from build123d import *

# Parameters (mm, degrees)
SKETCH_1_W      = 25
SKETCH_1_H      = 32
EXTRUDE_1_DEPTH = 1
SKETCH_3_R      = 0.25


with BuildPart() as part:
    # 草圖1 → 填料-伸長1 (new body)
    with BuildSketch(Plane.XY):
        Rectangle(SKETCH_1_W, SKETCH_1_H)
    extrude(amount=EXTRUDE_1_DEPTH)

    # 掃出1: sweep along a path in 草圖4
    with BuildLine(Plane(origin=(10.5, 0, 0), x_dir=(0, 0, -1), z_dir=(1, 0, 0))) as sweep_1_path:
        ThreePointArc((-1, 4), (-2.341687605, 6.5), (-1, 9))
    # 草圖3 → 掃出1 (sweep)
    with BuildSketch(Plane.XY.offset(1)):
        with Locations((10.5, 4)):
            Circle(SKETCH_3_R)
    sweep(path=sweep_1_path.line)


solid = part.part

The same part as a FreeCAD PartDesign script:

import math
import FreeCAD as App
import Part
import Sketcher

V = App.Vector


def add_polygon(sketch, points):
    """Adds a closed chain of lines whose ends are joined by coincident constraints."""
    first, n = sketch.GeometryCount, len(points)
    for a, b in zip(points, points[1:] + points[:1]):
        sketch.addGeometry(Part.LineSegment(App.Vector(*a, 0), App.Vector(*b, 0)), False)
    for i in range(n):
        sketch.addConstraint(Sketcher.Constraint("Coincident", first + i, 2, first + (i + 1) % n, 1))

doc = App.newDocument("Part")
params = doc.addObject("Spreadsheet::Sheet", "Params")
for row, (alias, value) in enumerate([
    ("sketch1_width", "25 mm"),
    ("sketch1_height", "32 mm"),
    ("pad1_length", "1 mm"),
    ("sketch2_diameter", "0.5 mm"),
    ("sketch3_radius", "3 mm"),
], start=1):
    params.set(f"A{row}", alias)
    params.set(f"B{row}", "=" + value)
    params.setAlias(f"B{row}", alias)

body = doc.addObject("PartDesign::Body", "Body")

# Sketch on XY plane
sketch1 = body.newObject("Sketcher::SketchObject", "Sketch")
sketch1.AttachmentSupport = (doc.getObject("XY_Plane"), [""])
sketch1.MapMode = "FlatFace"
add_polygon(sketch1, [(-12, 16), (-12, -16), (12, -16), (12, 16)])  # lines 0-3
sketch1.addConstraint([
    Sketcher.Constraint("Vertical", 0),
    Sketcher.Constraint("Horizontal", 1),
    Sketcher.Constraint("Vertical", 2),
    Sketcher.Constraint("Horizontal", 3),
    Sketcher.Constraint("Symmetric", 0, 2, 2, 2, -1, 1),
    Sketcher.Constraint("DistanceX", 1, 1, 1, 2, 25.0),
    Sketcher.Constraint("DistanceY", 0, 2, 0, 1, 32.0),
])
sketch1.setExpression("Constraints[9]", "Params.sketch1_width")
sketch1.setExpression("Constraints[10]", "Params.sketch1_height")
pad1 = body.newObject("PartDesign::Pad", "Pad")
pad1.Profile = sketch1
pad1.setExpression("Length", "Params.pad1_length")

# Sketch on XY plane
sketch2 = body.newObject("Sketcher::SketchObject", "Sketch001")
sketch2.AttachmentSupport = (doc.getObject("XY_Plane"), [""])
sketch2.MapMode = "FlatFace"
sketch2.AttachmentOffset = App.Placement(V(0, 0, 1), App.Rotation())
sketch2.addGeometry(Part.Circle(V(10.5, 4, 0), V(0, 0, 1), 0.25), False)
sketch2.addConstraint([
    Sketcher.Constraint("Diameter", 0, 0.5),
    Sketcher.Constraint("DistanceY", -1, 1, 0, 3, 4.0),
    Sketcher.Constraint("DistanceX", -1, 1, 0, 3, 10.5),
])
sketch2.setExpression("Constraints[0]", "Params.sketch2_diameter")

# Sketch on YZ plane
sketch3 = body.newObject("Sketcher::SketchObject", "Sketch002")
sketch3.AttachmentSupport = (doc.getObject("YZ_Plane"), [""])
sketch3.MapMode = "FlatFace"
sketch3.AttachmentOffset = App.Placement(V(0, 0, 10.5), App.Rotation())
sketch3.addGeometry(Part.ArcOfCircle(Part.Circle(V(6.5, -0.7, 0), V(0, 0, 1), 3), math.radians(34), math.radians(146)), False)
sketch3.addConstraint([
    Sketcher.Constraint("Radius", 0, 3.0),
    Sketcher.Constraint("DistanceX", -1, 1, 0, 1, 9.0),
    Sketcher.Constraint("DistanceY", -1, 1, 0, 1, 1.0),
    Sketcher.Constraint("DistanceX", -1, 1, 0, 2, 4.0),
    Sketcher.Constraint("DistanceY", -1, 1, 0, 2, 1.0),
])
sketch3.setExpression("Constraints[0]", "Params.sketch3_radius")
doc.recompute()

additivepipe = body.newObject("PartDesign::AdditivePipe", "AdditivePipe")
additivepipe.Profile = sketch2
additivepipe.Spine = (sketch3, ["Edge1"])

doc.recompute()
